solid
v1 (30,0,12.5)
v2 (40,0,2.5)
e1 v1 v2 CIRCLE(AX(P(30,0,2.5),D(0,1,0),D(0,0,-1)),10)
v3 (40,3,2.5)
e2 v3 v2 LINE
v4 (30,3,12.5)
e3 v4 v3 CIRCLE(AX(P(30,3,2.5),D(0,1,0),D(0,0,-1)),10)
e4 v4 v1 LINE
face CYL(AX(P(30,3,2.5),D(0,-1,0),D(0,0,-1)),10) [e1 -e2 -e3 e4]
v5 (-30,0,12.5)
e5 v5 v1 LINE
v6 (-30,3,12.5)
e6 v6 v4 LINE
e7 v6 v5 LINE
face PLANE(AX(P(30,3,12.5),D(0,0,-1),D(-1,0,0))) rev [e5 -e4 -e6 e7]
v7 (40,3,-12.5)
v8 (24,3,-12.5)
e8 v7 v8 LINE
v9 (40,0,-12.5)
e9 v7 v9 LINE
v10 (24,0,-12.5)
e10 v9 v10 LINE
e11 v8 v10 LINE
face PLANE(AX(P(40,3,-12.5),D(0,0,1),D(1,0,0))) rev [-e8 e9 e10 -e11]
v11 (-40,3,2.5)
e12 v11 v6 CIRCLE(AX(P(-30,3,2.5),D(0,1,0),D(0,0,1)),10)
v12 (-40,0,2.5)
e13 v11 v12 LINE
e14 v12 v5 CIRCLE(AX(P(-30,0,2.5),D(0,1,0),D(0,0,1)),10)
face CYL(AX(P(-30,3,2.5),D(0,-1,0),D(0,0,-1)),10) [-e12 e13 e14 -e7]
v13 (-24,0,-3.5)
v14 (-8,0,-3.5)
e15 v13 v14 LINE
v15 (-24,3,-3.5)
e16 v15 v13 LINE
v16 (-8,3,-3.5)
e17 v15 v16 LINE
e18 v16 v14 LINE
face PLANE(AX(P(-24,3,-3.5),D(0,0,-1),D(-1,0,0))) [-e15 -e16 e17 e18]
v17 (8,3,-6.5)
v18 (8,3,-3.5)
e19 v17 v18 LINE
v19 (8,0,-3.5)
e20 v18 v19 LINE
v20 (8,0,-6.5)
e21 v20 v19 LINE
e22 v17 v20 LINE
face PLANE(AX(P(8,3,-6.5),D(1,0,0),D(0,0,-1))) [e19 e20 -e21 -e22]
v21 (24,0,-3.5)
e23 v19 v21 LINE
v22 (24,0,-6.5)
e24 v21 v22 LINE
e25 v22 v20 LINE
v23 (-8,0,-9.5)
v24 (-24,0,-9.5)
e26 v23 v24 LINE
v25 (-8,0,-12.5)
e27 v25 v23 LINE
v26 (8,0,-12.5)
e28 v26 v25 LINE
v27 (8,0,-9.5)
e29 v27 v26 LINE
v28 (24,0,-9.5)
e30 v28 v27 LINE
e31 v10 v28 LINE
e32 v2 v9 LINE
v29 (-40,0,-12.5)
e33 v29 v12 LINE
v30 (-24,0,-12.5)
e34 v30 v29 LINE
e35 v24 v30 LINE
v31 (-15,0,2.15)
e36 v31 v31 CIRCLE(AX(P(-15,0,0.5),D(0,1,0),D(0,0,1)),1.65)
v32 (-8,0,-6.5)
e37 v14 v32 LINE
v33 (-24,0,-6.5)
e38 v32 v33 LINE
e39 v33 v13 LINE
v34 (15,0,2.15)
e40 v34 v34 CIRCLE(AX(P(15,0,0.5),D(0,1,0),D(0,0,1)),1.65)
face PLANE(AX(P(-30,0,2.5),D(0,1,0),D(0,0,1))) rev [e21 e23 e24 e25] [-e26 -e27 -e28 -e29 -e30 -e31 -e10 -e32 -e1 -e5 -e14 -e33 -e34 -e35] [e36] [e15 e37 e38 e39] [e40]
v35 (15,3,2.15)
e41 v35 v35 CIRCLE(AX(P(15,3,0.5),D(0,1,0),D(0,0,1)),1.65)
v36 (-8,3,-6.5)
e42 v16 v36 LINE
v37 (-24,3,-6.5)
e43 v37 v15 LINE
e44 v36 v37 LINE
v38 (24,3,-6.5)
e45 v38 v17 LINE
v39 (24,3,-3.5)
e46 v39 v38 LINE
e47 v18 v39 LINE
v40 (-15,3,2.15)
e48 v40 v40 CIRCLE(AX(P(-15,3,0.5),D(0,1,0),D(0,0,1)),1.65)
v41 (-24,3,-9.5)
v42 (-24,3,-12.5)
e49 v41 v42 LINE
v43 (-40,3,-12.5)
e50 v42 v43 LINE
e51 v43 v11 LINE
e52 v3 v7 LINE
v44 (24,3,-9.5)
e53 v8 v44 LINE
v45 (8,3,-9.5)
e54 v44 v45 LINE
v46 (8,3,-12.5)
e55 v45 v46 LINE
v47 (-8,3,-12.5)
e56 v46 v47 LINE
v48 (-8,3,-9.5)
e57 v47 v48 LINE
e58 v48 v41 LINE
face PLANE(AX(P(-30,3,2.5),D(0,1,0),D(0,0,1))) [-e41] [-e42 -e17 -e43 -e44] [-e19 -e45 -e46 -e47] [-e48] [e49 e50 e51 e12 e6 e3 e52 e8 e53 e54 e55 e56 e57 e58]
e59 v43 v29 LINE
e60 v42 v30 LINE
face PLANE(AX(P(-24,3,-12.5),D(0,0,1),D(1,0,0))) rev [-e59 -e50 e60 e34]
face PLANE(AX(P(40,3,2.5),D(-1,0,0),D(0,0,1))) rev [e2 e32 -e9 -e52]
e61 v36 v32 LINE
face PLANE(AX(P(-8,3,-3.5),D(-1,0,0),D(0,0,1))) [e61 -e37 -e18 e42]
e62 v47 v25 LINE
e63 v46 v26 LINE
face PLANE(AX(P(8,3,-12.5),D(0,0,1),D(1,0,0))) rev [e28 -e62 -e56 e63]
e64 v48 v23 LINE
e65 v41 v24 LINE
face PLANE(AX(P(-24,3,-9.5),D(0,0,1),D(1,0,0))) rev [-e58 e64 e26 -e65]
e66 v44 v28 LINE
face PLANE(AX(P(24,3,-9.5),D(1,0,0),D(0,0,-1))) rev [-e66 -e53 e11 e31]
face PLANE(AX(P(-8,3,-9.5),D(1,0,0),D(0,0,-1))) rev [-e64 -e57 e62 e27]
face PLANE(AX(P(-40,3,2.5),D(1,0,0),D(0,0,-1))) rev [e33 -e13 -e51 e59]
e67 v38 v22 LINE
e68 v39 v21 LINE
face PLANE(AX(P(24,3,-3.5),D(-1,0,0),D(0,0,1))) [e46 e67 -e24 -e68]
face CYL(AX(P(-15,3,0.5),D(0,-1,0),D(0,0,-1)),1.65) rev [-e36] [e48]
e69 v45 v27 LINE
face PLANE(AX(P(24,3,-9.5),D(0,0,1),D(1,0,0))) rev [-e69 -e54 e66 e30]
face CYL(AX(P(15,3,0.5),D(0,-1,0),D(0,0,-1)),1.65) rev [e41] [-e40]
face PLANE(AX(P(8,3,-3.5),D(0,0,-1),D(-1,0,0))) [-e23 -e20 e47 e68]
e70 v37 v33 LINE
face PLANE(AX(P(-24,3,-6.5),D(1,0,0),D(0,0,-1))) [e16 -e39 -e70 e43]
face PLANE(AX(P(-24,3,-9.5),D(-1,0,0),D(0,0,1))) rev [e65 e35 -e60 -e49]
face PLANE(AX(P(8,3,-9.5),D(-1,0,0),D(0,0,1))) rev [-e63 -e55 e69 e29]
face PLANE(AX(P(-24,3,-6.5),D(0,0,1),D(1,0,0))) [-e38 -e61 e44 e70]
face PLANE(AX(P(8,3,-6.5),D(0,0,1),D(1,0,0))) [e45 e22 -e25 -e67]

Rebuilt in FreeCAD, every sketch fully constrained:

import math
import FreeCAD as App
import Part
import Sketcher


def add_polygon(sketch, points):
    """Adds a closed chain of lines whose ends are joined by coincident constraints."""
    first, n = sketch.GeometryCount, len(points)
    for a, b in zip(points, points[1:] + points[:1]):
        sketch.addGeometry(Part.LineSegment(App.Vector(*a, 0), App.Vector(*b, 0)), False)
    for i in range(n):
        sketch.addConstraint(Sketcher.Constraint("Coincident", first + i, 2, first + (i + 1) % n, 1))

doc = App.newDocument("Part")
params = doc.addObject("Spreadsheet::Sheet", "Params")
for row, (alias, value) in enumerate([
    ("sketch1_radius", "10 mm"),
    ("sketch1_diameter", "3.3 mm"),
    ("sketch1_width", "60 mm"),
    ("sketch1_height", "15 mm"),
    ("sketch1_height2", "3 mm"),
    ("pad1_length", "3 mm"),
], start=1):
    params.set(f"A{row}", alias)
    params.set(f"B{row}", "=" + value)
    params.setAlias(f"B{row}", alias)

body = doc.addObject("PartDesign::Body", "Body")

# Sketch on XZ plane
sketch1 = body.newObject("Sketcher::SketchObject", "Sketch")
sketch1.AttachmentSupport = (doc.getObject("XZ_Plane"), [""])
sketch1.MapMode = "FlatFace"
sketch1.addGeometry(Part.LineSegment(App.Vector(-30, 12.5, 0), App.Vector(30, 12.5, 0)), False)  # 0
sketch1.addGeometry(Part.ArcOfCircle(Part.Circle(App.Vector(30, 2.5, 0), App.Vector(0, 0, 1), 10), math.radians(0), math.radians(90)), False)  # 1
sketch1.addGeometry(Part.LineSegment(App.Vector(40, 2.5, 0), App.Vector(40, -12.5, 0)), False)  # 2
sketch1.addGeometry(Part.LineSegment(App.Vector(40, -12.5, 0), App.Vector(24, -12.5, 0)), False)  # 3
sketch1.addGeometry(Part.LineSegment(App.Vector(24, -12.5, 0), App.Vector(24, -9.5, 0)), False)  # 4
sketch1.addGeometry(Part.LineSegment(App.Vector(24, -9.5, 0), App.Vector(8, -9.5, 0)), False)  # 5
sketch1.addGeometry(Part.LineSegment(App.Vector(8, -9.5, 0), App.Vector(8, -12.5, 0)), False)  # 6
sketch1.addGeometry(Part.LineSegment(App.Vector(8, -12.5, 0), App.Vector(-8, -12.5, 0)), False)  # 7
sketch1.addGeometry(Part.LineSegment(App.Vector(-8, -12.5, 0), App.Vector(-8, -9.5, 0)), False)  # 8
sketch1.addGeometry(Part.LineSegment(App.Vector(-8, -9.5, 0), App.Vector(-24, -9.5, 0)), False)  # 9
sketch1.addGeometry(Part.LineSegment(App.Vector(-24, -9.5, 0), App.Vector(-24, -12.5, 0)), False)  # 10
sketch1.addGeometry(Part.LineSegment(App.Vector(-24, -12.5, 0), App.Vector(-40, -12.5, 0)), False)  # 11
sketch1.addGeometry(Part.LineSegment(App.Vector(-40, -12.5, 0), App.Vector(-40, 2.5, 0)), False)  # 12
sketch1.addGeometry(Part.ArcOfCircle(Part.Circle(App.Vector(-30, 2.5, 0), App.Vector(0, 0, 1), 10), math.radians(90), math.radians(180)), False)  # 13
sketch1.addGeometry(Part.Circle(App.Vector(15, 0.5, 0), App.Vector(0, 0, 1), 1.65), False)  # 14
sketch1.addGeometry(Part.Circle(App.Vector(-15, 0.5, 0), App.Vector(0, 0, 1), 1.65), False)  # 15
add_polygon(sketch1, [(8, -3.5), (8, -6.5), (24, -6.5), (24, -3.5)])  # lines 16-19
add_polygon(sketch1, [(-24, -3.5), (-24, -6.5), (-8, -6.5), (-8, -3.5)])  # lines 20-23
sketch1.addConstraint(Sketcher.Constraint("Tangent", 0, 2, 1, 2))
sketch1.addConstraint(Sketcher.Constraint("Tangent", 1, 1, 2, 1))
sketch1.addConstraint(Sketcher.Constraint("Coincident", 2, 2, 3, 1))
sketch1.addConstraint(Sketcher.Constraint("Coincident", 3, 2, 4, 1))
sketch1.addConstraint(Sketcher.Constraint("Coincident", 4, 2, 5, 1))
sketch1.addConstraint(Sketcher.Constraint("Coincident", 5, 2, 6, 1))
sketch1.addConstraint(Sketcher.Constraint("Coincident", 6, 2, 7, 1))
sketch1.addConstraint(Sketcher.Constraint("Coincident", 7, 2, 8, 1))
sketch1.addConstraint(Sketcher.Constraint("Coincident", 8, 2, 9, 1))
sketch1.addConstraint(Sketcher.Constraint("Coincident", 9, 2, 10, 1))
sketch1.addConstraint(Sketcher.Constraint("Coincident", 10, 2, 11, 1))
sketch1.addConstraint(Sketcher.Constraint("Coincident", 11, 2, 12, 1))
sketch1.addConstraint(Sketcher.Constraint("Tangent", 12, 2, 13, 2))
sketch1.addConstraint(Sketcher.Constraint("Tangent", 13, 1, 0, 1))
sketch1.addConstraint(Sketcher.Constraint("Horizontal", 0))
sketch1.addConstraint(Sketcher.Constraint("Vertical", 2))
sketch1.addConstraint(Sketcher.Constraint("Horizontal", 3))
sketch1.addConstraint(Sketcher.Constraint("Vertical", 4))
sketch1.addConstraint(Sketcher.Constraint("Horizontal", 5))
sketch1.addConstraint(Sketcher.Constraint("Vertical", 6))
sketch1.addConstraint(Sketcher.Constraint("Horizontal", 7))
sketch1.addConstraint(Sketcher.Constraint("Vertical", 8))
sketch1.addConstraint(Sketcher.Constraint("Horizontal", 9))
sketch1.addConstraint(Sketcher.Constraint("Vertical", 10))
sketch1.addConstraint(Sketcher.Constraint("Horizontal", 11))
sketch1.addConstraint(Sketcher.Constraint("Vertical", 12))
sketch1.addConstraint(Sketcher.Constraint("Vertical", 16))
sketch1.addConstraint(Sketcher.Constraint("Horizontal", 17))
sketch1.addConstraint(Sketcher.Constraint("Vertical", 18))
sketch1.addConstraint(Sketcher.Constraint("Horizontal", 19))
sketch1.addConstraint(Sketcher.Constraint("Vertical", 20))
sketch1.addConstraint(Sketcher.Constraint("Horizontal", 21))
sketch1.addConstraint(Sketcher.Constraint("Vertical", 22))
sketch1.addConstraint(Sketcher.Constraint("Horizontal", 23))
sketch1.addConstraint(Sketcher.Constraint("Equal", 1, 13))
sketch1.addConstraint(Sketcher.Constraint("Equal", 14, 15))
sketch1.addConstraint(Sketcher.Constraint("Symmetric", 14, 3, 15, 3, -2))
sketch1.addConstraint(Sketcher.Constraint("Symmetric", 5, 2, 8, 2, -2))
sketch1.addConstraint(Sketcher.Constraint("Symmetric", 3, 2, 10, 2, -2))
sketch1.addConstraint(Sketcher.Constraint("Symmetric", 17, 2, 20, 2, -2))
sketch1.addConstraint(Sketcher.Constraint("Symmetric", 19, 2, 22, 2, -2))
sketch1.addConstraint(Sketcher.Constraint("Horizontal", 3, 2, 6, 2))
sketch1.addConstraint(Sketcher.Constraint("Vertical", 6, 2, 16, 2))
sketch1.addConstraint(Sketcher.Constraint("Vertical", 4, 2, 17, 2))
sketch1.addConstraint(Sketcher.Constraint("Equal", 3, 5))
sketch1.addConstraint(Sketcher.Constraint("Equal", 5, 7))
sketch1.addConstraint(Sketcher.Constraint("Equal", 9, 11))
sketch1.addConstraint(Sketcher.Constraint("Equal", 10, 16))
sketch1.addConstraint(Sketcher.Constraint("Radius", 1, 10.0))
sketch1.addConstraint(Sketcher.Constraint("Diameter", 14, 3.3))
sketch1.addConstraint(Sketcher.Constraint("DistanceX", 0, 1, 0, 2, 60.0))
sketch1.addConstraint(Sketcher.Constraint("DistanceY", 2, 2, 2, 1, 15.0))
sketch1.addConstraint(Sketcher.Constraint("DistanceY", 4, 1, 4, 2, 3.0))
sketch1.addConstraint(Sketcher.Constraint("DistanceX", -1, 1, 14, 3, 15.0))
sketch1.addConstraint(Sketcher.Constraint("DistanceY", 14, 3, 1, 3, 2.0))
sketch1.addConstraint(Sketcher.Constraint("DistanceY", 5, 2, 16, 2, 3.0))
sketch1.addConstraint(Sketcher.Constraint("DistanceY", -1, 1, 1, 3, 2.5))
sketch1.setExpression("Constraints[56]", "Params.sketch1_radius")
sketch1.setExpression("Constraints[57]", "Params.sketch1_diameter")
sketch1.setExpression("Constraints[58]", "Params.sketch1_width")
sketch1.setExpression("Constraints[59]", "Params.sketch1_height")
sketch1.setExpression("Constraints[60]", "Params.sketch1_height2")
pad1 = body.newObject("PartDesign::Pad", "Pad")
pad1.Profile = sketch1
pad1.setExpression("Length", "Params.pad1_length")
pad1.Reversed = True

doc.recompute()
